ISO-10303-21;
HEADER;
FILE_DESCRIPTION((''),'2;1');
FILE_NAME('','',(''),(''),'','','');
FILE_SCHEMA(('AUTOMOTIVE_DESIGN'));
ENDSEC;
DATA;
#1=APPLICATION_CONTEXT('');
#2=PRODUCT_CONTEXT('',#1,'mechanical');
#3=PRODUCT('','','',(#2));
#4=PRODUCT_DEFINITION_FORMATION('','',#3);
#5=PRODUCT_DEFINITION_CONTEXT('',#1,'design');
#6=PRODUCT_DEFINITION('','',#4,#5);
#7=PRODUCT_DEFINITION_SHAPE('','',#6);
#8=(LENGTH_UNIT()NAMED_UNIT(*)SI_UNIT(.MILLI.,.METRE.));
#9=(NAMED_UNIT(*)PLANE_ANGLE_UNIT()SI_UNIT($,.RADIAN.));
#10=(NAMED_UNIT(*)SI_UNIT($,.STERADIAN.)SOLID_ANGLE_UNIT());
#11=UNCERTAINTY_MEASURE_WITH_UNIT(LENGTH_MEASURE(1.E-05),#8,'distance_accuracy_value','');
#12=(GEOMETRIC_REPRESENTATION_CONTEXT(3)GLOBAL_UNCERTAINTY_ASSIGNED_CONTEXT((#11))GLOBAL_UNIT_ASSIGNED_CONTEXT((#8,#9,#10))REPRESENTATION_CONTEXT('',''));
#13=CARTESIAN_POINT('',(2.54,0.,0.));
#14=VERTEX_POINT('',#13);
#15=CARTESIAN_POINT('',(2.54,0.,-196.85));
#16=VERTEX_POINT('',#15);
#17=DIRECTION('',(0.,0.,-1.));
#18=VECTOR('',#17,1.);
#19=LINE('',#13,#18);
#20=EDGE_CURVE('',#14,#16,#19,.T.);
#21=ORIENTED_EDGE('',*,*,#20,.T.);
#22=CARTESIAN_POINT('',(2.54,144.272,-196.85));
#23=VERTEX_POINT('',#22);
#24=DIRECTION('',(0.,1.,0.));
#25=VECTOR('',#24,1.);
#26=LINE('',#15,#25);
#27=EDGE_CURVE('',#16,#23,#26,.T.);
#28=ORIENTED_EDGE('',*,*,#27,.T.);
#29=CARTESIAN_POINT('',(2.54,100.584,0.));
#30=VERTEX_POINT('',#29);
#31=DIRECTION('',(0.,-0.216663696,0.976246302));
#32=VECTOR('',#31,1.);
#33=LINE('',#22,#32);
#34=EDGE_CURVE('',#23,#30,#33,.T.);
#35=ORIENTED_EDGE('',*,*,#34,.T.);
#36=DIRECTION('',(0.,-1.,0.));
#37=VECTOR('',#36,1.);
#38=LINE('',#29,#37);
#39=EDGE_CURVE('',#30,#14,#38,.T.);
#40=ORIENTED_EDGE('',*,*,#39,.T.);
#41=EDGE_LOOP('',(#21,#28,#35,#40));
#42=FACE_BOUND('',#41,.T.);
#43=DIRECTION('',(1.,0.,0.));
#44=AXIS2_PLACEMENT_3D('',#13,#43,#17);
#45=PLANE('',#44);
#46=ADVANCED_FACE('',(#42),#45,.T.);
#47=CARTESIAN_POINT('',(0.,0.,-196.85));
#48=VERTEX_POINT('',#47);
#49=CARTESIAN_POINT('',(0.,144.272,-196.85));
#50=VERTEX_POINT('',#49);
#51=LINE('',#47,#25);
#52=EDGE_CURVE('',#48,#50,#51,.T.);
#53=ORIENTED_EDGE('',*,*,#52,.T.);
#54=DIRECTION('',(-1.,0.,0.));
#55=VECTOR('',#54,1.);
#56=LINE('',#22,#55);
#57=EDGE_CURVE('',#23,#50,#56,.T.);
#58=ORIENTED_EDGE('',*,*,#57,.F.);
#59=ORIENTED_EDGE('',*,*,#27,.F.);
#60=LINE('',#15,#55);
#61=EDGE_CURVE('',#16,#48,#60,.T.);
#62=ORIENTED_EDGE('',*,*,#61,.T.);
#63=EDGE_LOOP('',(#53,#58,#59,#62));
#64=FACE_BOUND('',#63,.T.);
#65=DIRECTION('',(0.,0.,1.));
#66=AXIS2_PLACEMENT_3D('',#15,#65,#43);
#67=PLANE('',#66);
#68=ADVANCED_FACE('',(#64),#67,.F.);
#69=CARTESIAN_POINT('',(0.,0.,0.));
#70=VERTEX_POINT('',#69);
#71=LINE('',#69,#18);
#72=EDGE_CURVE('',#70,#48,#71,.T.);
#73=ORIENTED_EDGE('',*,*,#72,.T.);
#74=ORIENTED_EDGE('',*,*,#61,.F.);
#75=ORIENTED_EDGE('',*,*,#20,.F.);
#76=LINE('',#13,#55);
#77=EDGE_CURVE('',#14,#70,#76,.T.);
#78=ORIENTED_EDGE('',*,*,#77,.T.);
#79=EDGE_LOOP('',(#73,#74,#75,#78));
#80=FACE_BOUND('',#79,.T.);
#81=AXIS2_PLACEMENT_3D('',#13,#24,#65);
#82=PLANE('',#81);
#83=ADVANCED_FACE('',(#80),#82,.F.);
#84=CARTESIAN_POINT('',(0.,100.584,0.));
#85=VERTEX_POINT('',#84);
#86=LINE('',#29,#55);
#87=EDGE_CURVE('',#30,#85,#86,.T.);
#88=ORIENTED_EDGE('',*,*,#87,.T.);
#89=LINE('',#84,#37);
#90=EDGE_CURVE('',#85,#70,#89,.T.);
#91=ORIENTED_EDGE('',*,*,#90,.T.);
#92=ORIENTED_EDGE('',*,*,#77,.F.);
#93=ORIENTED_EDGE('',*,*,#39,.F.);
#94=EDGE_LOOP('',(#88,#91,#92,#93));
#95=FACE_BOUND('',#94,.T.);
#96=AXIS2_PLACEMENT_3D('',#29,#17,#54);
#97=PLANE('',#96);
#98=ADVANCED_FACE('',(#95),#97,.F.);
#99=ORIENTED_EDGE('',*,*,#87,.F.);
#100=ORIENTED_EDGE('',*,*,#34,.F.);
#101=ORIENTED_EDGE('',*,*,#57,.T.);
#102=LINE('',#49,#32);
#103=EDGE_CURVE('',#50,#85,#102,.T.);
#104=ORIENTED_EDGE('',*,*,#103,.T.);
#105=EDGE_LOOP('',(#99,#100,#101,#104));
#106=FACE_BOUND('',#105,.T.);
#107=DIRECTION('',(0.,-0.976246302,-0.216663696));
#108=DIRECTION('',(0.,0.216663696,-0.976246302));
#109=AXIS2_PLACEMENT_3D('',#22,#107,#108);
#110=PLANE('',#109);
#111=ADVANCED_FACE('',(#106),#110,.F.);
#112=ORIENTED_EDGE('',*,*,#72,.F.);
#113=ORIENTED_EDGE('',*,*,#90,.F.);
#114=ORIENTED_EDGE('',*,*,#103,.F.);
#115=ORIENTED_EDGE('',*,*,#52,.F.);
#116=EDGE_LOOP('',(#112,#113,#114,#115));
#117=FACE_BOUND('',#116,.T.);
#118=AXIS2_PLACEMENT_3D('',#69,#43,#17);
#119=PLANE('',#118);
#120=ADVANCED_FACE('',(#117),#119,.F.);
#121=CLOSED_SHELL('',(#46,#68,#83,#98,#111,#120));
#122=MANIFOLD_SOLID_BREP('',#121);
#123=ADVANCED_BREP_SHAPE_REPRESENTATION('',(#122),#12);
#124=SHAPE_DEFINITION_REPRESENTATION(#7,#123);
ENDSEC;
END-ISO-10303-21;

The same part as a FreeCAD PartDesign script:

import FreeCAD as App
import Part
import Sketcher
from FreeCAD import Vector
Q = App.Units.Quantity

doc = App.newDocument("Part")
params = doc.addObject("Spreadsheet::Sheet", "Params")
for row, (alias, value) in enumerate([
    ("sketch1_width", "5.68 in"),
    ("sketch1_width2", "3.96 in"),
    ("sketch1_height", "7.75 in"),
    ("pad1_length", "0.1 in"),
], start=1):
    params.set(f"A{row}", alias)
    params.set(f"B{row}", "=" + value)
    params.setAlias(f"B{row}", alias)

body = doc.addObject("PartDesign::Body", "Body")

sketch1 = body.newObject("Sketcher::SketchObject", "Sketch")
sketch1.AttachmentSupport = (doc.getObject("YZ_Plane"), [""])
sketch1.MapMode = "FlatFace"
sketch1.addGeometry(Part.LineSegment(Vector(0, 0, 0), Vector(0, -196.85, 0)), False)
sketch1.addGeometry(Part.LineSegment(Vector(0, -196.85, 0), Vector(144.272, -196.85, 0)), False)
sketch1.addGeometry(Part.LineSegment(Vector(144.272, -196.85, 0), Vector(100.584, 0, 0)), False)
sketch1.addGeometry(Part.LineSegment(Vector(100.584, 0, 0), Vector(0, 0, 0)), False)
sketch1.addConstraint(Sketcher.Constraint("Coincident", 0, 2, 1, 1))
sketch1.addConstraint(Sketcher.Constraint("Coincident", 1, 2, 2, 1))
sketch1.addConstraint(Sketcher.Constraint("Coincident", 2, 2, 3, 1))
sketch1.addConstraint(Sketcher.Constraint("Coincident", 3, 2, 0, 1))
sketch1.addConstraint(Sketcher.Constraint("Vertical", 0))
sketch1.addConstraint(Sketcher.Constraint("Horizontal", 1))
sketch1.addConstraint(Sketcher.Constraint("Horizontal", 3))
sketch1.addConstraint(Sketcher.Constraint("Coincident", 3, 2, -1, 1))
sketch1.addConstraint(Sketcher.Constraint("DistanceX", 1, 1, 1, 2, Q("5.68 in")))
sketch1.addConstraint(Sketcher.Constraint("DistanceX", 3, 2, 3, 1, Q("3.96 in")))
sketch1.addConstraint(Sketcher.Constraint("DistanceY", 0, 2, 0, 1, Q("7.75 in")))
sketch1.setExpression("Constraints[8]", "Params.sketch1_width")
sketch1.setExpression("Constraints[9]", "Params.sketch1_width2")
sketch1.setExpression("Constraints[10]", "Params.sketch1_height")
pad1 = body.newObject("PartDesign::Pad", "Pad")
pad1.Profile = sketch1
pad1.setExpression("Length", "Params.pad1_length")

doc.recompute()
